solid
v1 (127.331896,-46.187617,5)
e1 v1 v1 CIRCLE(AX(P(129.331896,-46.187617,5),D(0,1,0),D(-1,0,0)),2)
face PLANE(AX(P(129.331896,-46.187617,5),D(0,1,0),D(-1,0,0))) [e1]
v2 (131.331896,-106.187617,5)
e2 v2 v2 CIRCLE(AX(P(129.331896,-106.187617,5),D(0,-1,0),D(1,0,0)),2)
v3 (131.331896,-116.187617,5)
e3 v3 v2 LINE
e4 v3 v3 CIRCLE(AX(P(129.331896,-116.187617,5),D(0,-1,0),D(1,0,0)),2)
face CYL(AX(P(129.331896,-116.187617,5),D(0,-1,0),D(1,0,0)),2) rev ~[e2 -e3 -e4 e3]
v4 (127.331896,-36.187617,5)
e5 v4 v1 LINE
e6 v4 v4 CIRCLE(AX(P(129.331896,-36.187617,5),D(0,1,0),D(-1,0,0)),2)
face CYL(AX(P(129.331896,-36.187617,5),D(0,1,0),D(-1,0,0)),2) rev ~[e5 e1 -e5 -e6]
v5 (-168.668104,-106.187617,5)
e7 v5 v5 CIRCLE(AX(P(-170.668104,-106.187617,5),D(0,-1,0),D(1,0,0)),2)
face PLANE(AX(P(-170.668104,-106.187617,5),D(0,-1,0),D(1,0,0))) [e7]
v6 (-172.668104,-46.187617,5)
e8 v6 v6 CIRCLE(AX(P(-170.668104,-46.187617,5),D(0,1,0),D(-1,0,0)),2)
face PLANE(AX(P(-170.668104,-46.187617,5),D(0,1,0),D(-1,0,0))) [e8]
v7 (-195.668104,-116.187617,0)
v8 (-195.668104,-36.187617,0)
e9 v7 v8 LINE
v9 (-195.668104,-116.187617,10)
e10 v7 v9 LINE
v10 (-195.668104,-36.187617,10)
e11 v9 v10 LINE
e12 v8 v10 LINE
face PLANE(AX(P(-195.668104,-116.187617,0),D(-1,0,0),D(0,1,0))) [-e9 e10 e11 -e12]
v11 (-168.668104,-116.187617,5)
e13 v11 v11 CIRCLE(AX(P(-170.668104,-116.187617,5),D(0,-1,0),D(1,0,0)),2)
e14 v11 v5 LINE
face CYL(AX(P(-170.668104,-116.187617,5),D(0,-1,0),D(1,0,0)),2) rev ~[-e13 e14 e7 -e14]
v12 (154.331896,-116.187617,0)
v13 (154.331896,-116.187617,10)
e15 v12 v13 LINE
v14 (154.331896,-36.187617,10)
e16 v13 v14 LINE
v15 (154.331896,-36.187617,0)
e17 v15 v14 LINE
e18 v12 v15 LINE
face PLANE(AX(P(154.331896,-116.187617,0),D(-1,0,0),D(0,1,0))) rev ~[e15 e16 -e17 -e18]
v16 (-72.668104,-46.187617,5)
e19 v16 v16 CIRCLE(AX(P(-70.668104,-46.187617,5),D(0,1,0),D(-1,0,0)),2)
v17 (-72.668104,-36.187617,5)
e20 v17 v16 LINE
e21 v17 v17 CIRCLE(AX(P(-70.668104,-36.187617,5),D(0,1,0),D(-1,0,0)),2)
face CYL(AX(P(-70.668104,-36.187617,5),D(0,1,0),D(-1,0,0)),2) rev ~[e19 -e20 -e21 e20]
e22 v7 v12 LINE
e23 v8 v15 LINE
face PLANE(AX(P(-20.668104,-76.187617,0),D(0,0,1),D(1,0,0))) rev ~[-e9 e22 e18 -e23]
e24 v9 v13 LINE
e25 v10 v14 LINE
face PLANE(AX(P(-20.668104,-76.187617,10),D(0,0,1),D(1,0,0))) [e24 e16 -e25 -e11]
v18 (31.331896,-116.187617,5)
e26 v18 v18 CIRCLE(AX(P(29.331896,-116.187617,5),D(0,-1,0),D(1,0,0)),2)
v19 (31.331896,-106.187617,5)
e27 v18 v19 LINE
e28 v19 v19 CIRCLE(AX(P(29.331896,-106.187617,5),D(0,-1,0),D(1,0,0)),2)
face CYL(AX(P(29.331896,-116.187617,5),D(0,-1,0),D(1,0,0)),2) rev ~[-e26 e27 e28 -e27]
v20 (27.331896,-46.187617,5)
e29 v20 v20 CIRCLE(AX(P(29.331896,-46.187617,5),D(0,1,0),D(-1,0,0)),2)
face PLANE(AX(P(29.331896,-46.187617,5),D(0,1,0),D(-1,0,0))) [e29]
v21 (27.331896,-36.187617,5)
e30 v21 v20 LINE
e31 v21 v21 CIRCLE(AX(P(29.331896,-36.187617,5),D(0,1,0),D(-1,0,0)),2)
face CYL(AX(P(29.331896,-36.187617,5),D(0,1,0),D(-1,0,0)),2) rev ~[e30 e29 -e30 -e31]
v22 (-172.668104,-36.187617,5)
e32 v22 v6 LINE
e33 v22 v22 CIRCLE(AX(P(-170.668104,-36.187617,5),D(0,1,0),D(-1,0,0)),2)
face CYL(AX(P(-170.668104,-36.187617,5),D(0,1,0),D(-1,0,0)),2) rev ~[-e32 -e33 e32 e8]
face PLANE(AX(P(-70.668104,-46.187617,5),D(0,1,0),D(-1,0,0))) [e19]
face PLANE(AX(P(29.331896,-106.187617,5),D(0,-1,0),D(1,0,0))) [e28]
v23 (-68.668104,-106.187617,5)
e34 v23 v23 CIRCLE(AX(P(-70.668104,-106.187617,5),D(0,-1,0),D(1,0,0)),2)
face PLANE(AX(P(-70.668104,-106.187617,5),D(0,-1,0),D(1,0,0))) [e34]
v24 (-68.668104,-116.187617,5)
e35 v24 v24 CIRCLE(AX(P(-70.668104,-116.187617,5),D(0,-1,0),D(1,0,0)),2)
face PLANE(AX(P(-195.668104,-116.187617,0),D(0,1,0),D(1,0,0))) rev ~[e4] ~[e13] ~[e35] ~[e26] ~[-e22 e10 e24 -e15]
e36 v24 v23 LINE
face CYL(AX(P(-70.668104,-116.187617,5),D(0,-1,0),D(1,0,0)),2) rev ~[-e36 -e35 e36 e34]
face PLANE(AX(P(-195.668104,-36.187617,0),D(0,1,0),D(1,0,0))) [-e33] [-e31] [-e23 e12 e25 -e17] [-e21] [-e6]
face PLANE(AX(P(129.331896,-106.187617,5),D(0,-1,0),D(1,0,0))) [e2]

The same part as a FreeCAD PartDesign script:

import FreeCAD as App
import Part
import Sketcher

doc = App.newDocument("Part")
body = doc.addObject("PartDesign::Body", "Body")

# Sketch on XY plane
sketch1 = body.newObject("Sketcher::SketchObject", "Sketch")
sketch1.AttachmentSupport = (doc.getObject("XY_Plane"), [""])
sketch1.MapMode = "FlatFace"
sketch1.addGeometry(Part.LineSegment(App.Vector(-195.668104, -36.187617, 0), App.Vector(-195.668104, -116.187617, 0)), False)
sketch1.addGeometry(Part.LineSegment(App.Vector(-195.668104, -116.187617, 0), App.Vector(154.331896, -116.187617, 0)), False)
sketch1.addGeometry(Part.LineSegment(App.Vector(154.331896, -116.187617, 0), App.Vector(154.331896, -36.187617, 0)), False)
sketch1.addGeometry(Part.LineSegment(App.Vector(154.331896, -36.187617, 0), App.Vector(-195.668104, -36.187617, 0)), False)
sketch1.addConstraint(Sketcher.Constraint("Coincident", 0, 2, 1, 1))
sketch1.addConstraint(Sketcher.Constraint("Coincident", 1, 2, 2, 1))
sketch1.addConstraint(Sketcher.Constraint("Coincident", 2, 2, 3, 1))
sketch1.addConstraint(Sketcher.Constraint("Coincident", 3, 2, 0, 1))
sketch1.addConstraint(Sketcher.Constraint("Vertical", 0))
sketch1.addConstraint(Sketcher.Constraint("Horizontal", 1))
sketch1.addConstraint(Sketcher.Constraint("Vertical", 2))
sketch1.addConstraint(Sketcher.Constraint("Horizontal", 3))
sketch1.addConstraint(Sketcher.Constraint("DistanceX", 1, 1, 1, 2, 350.0))
sketch1.addConstraint(Sketcher.Constraint("DistanceY", 0, 2, 0, 1, 80.0))
sketch1.addConstraint(Sketcher.Constraint("DistanceX", 0, 2, -1, 1, 195.668104))
sketch1.addConstraint(Sketcher.Constraint("DistanceY", 0, 2, -1, 1, 116.187617))
pad1 = body.newObject("PartDesign::Pad", "Pad")
pad1.Profile = sketch1
pad1.Length = 10

# Sketch on XZ plane
sketch2 = body.newObject("Sketcher::SketchObject", "Sketch001")
sketch2.AttachmentSupport = (doc.getObject("XZ_Plane"), [""])
sketch2.MapMode = "FlatFace"
sketch2.AttachmentOffset = App.Placement(App.Vector(0, 0, 116.187617), App.Rotation())
sketch2.addGeometry(Part.Circle(App.Vector(-170.668104, 5, 0), App.Vector(0, 0, 1), 2), False)
sketch2.addGeometry(Part.Circle(App.Vector(-70.668104, 5, 0), App.Vector(0, 0, 1), 2), False)
sketch2.addGeometry(Part.Circle(App.Vector(29.331896, 5, 0), App.Vector(0, 0, 1), 2), False)
sketch2.addGeometry(Part.Circle(App.Vector(129.331896, 5, 0), App.Vector(0, 0, 1), 2), False)
sketch2.addConstraint(Sketcher.Constraint("Equal", 0, 1))
sketch2.addConstraint(Sketcher.Constraint("Equal", 1, 2))
sketch2.addConstraint(Sketcher.Constraint("Equal", 2, 3))
sketch2.addConstraint(Sketcher.Constraint("Horizontal", 0, 3, 1, 3))
sketch2.addConstraint(Sketcher.Constraint("Horizontal", 1, 3, 2, 3))
sketch2.addConstraint(Sketcher.Constraint("Horizontal", 2, 3, 3, 3))
sketch2.addConstraint(Sketcher.Constraint("Diameter", 0, 4.0))
sketch2.addConstraint(Sketcher.Constraint("DistanceY", -1, 1, 0, 3, 5.0))
sketch2.addConstraint(Sketcher.Constraint("DistanceX", 0, 3, 1, 3, 100.0))
sketch2.addConstraint(Sketcher.Constraint("DistanceX", 1, 3, 2, 3, 100.0))
sketch2.addConstraint(Sketcher.Constraint("DistanceX", 2, 3, 3, 3, 100.0))
sketch2.addConstraint(Sketcher.Constraint("DistanceX", 0, 3, -1, 1, 170.668104))
pocket1 = body.newObject("PartDesign::Pocket", "Pocket")
pocket1.Profile = sketch2
pocket1.Length = 10

# Sketch on XZ plane
sketch3 = body.newObject("Sketcher::SketchObject", "Sketch002")
sketch3.AttachmentSupport = (doc.getObject("XZ_Plane"), [""])
sketch3.MapMode = "FlatFace"
sketch3.AttachmentOffset = App.Placement(App.Vector(0, 0, 36.187617), App.Rotation())
sketch3.addGeometry(Part.Circle(App.Vector(-170.668104, 5, 0), App.Vector(0, 0, 1), 2), False)
sketch3.addGeometry(Part.Circle(App.Vector(-70.668104, 5, 0), App.Vector(0, 0, 1), 2), False)
sketch3.addGeometry(Part.Circle(App.Vector(29.331896, 5, 0), App.Vector(0, 0, 1), 2), False)
sketch3.addGeometry(Part.Circle(App.Vector(129.331896, 5, 0), App.Vector(0, 0, 1), 2), False)
sketch3.addConstraint(Sketcher.Constraint("Equal", 0, 1))
sketch3.addConstraint(Sketcher.Constraint("Equal", 1, 2))
sketch3.addConstraint(Sketcher.Constraint("Equal", 2, 3))
sketch3.addConstraint(Sketcher.Constraint("Horizontal", 0, 3, 1, 3))
sketch3.addConstraint(Sketcher.Constraint("Horizontal", 1, 3, 2, 3))
sketch3.addConstraint(Sketcher.Constraint("Horizontal", 2, 3, 3, 3))
sketch3.addConstraint(Sketcher.Constraint("Diameter", 0, 4.0))
sketch3.addConstraint(Sketcher.Constraint("DistanceY", -1, 1, 0, 3, 5.0))
sketch3.addConstraint(Sketcher.Constraint("DistanceX", 0, 3, 1, 3, 100.0))
sketch3.addConstraint(Sketcher.Constraint("DistanceX", 1, 3, 2, 3, 100.0))
sketch3.addConstraint(Sketcher.Constraint("DistanceX", 2, 3, 3, 3, 100.0))
sketch3.addConstraint(Sketcher.Constraint("DistanceX", 0, 3, -1, 1, 170.668104))
pocket2 = body.newObject("PartDesign::Pocket", "Pocket001")
pocket2.Profile = sketch3
pocket2.Length = 10
pocket2.Reversed = True

doc.recompute()
